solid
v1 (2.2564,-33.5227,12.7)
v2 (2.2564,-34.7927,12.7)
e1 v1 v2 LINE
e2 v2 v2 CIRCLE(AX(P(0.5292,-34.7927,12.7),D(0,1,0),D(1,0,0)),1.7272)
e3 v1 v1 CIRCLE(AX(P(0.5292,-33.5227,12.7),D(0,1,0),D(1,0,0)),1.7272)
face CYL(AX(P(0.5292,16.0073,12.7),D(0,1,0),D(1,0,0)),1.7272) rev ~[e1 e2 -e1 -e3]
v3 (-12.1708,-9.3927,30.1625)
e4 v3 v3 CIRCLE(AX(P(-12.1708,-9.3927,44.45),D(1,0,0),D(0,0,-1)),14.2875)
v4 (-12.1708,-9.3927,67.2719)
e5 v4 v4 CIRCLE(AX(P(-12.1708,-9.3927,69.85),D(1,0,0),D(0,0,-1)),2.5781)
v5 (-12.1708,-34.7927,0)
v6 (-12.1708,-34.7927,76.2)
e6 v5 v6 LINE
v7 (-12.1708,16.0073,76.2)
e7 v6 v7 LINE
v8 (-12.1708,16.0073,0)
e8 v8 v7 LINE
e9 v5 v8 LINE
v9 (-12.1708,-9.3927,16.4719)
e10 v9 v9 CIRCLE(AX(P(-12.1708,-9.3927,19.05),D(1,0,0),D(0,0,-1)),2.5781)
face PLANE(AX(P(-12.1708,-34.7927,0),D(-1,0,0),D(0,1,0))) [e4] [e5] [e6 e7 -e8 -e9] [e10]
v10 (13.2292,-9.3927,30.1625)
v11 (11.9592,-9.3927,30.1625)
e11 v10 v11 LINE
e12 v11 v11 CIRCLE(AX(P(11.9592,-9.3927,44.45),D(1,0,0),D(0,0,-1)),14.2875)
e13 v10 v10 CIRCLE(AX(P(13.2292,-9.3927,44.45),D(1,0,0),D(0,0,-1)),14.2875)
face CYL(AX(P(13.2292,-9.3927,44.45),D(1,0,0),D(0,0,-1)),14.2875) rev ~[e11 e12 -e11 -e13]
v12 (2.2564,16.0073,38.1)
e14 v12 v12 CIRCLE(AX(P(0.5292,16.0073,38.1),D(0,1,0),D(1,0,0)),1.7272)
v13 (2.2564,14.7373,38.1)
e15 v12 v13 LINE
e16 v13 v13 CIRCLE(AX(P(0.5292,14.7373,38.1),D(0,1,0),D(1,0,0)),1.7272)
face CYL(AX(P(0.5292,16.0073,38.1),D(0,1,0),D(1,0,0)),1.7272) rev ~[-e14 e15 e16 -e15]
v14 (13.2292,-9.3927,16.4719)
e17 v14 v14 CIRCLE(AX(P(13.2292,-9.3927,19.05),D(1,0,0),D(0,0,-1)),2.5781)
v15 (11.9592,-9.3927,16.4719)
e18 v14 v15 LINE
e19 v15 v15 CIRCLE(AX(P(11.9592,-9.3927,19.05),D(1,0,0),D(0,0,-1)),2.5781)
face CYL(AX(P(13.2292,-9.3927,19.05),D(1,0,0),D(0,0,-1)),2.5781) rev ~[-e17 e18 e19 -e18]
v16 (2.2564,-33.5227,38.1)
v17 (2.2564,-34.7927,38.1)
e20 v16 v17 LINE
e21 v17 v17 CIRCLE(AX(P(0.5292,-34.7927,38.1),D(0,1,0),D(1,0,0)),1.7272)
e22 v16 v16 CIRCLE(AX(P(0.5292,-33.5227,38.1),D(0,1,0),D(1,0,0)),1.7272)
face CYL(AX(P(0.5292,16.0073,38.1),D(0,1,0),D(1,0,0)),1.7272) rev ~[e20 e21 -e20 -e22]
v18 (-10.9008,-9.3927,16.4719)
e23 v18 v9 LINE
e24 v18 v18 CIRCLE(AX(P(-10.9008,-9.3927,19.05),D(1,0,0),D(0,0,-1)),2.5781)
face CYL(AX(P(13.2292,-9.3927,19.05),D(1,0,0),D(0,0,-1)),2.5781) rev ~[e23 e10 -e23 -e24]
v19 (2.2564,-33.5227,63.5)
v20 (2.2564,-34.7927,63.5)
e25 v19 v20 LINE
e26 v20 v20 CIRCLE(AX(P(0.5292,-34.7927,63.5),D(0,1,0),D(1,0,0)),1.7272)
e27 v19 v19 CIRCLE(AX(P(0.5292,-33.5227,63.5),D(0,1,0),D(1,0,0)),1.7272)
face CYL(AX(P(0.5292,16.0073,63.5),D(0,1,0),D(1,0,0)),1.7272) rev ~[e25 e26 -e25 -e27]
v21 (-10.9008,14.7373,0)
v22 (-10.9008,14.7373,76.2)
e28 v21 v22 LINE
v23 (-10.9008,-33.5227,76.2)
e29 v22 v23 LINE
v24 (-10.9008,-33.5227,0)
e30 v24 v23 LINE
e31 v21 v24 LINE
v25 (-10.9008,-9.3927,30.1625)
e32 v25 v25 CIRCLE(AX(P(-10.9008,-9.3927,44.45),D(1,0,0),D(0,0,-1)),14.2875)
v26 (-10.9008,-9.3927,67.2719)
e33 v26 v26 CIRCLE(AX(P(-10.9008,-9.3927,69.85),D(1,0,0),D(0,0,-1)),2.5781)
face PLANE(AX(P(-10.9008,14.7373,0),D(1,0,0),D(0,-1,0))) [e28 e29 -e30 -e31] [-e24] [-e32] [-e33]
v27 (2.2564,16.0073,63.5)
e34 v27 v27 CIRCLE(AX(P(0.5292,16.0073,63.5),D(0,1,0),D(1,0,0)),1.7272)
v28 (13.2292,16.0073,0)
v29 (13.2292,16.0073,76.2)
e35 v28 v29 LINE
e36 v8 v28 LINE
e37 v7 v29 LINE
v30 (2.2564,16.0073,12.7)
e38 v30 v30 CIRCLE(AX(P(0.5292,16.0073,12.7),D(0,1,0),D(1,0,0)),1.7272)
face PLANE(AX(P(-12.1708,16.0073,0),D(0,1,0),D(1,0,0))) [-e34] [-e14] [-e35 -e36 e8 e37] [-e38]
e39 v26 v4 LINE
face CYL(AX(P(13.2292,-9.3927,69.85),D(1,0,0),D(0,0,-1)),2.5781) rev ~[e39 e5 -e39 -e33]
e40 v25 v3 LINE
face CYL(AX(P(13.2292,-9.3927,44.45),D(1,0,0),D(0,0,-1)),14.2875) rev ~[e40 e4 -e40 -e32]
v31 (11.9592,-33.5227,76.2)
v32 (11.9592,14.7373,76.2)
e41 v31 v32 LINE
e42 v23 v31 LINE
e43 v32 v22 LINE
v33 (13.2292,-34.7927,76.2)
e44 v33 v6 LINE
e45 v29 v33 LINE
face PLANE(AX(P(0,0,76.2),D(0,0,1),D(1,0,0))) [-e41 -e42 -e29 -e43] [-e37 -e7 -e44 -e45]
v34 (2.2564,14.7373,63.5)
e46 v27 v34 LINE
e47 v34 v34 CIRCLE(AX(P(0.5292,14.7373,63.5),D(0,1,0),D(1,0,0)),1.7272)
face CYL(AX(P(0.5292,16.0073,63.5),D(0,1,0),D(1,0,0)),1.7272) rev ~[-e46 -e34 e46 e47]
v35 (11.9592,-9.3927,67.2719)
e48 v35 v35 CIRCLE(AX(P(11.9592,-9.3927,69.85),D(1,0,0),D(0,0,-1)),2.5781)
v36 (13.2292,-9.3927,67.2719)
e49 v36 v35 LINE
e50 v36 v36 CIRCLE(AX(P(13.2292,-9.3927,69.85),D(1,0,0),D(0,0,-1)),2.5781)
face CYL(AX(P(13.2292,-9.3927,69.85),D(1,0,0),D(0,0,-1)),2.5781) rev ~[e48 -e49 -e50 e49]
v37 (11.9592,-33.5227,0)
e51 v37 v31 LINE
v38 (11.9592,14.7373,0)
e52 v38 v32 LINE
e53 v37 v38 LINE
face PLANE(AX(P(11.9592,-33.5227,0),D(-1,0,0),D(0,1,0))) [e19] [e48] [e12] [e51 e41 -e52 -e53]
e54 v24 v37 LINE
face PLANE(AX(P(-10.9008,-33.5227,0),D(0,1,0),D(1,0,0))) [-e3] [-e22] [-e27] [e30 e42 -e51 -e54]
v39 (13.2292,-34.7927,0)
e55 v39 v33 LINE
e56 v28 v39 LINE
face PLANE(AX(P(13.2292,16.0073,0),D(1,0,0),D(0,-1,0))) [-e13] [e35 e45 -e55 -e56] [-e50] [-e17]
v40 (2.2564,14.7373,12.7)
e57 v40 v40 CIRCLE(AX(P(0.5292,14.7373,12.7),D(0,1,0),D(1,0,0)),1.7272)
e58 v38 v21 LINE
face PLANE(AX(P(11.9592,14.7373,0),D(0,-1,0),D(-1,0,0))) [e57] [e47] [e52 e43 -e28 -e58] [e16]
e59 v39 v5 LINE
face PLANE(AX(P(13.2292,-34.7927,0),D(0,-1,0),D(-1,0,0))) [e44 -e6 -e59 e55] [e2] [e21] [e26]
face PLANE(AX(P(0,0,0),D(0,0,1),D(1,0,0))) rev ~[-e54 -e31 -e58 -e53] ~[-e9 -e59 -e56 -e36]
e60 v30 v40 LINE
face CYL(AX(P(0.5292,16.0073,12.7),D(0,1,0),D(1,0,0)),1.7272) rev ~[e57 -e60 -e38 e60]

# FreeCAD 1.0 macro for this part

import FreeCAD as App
import Part
import Sketcher

V = App.Vector
Q = App.Units.Quantity


def add_polygon(sketch, points):
    """Adds a closed chain of lines whose ends are joined by coincident constraints."""
    first, n = sketch.GeometryCount, len(points)
    for a, b in zip(points, points[1:] + points[:1]):
        sketch.addGeometry(Part.LineSegment(App.Vector(*a, 0), App.Vector(*b, 0)), False)
    for i in range(n):
        sketch.addConstraint(Sketcher.Constraint("Coincident", first + i, 2, first + (i + 1) % n, 1))

doc = App.newDocument("Part")
body = doc.addObject("PartDesign::Body", "Body")

sketch1 = body.newObject("Sketcher::SketchObject", "Sketch")
sketch1.AttachmentSupport = (doc.getObject("XY_Plane"), [""])
sketch1.MapMode = "FlatFace"
add_polygon(sketch1, [(13.2292, 16.0073), (-12.1708, 16.0073), (-12.1708, -34.7927), (13.2292, -34.7927)])
add_polygon(sketch1, [(-10.9008, 14.7373), (11.9592, 14.7373), (11.9592, -33.5227), (-10.9008, -33.5227)])
sketch1.addConstraint([
    Sketcher.Constraint("Horizontal", 0),
    Sketcher.Constraint("Vertical", 1),
    Sketcher.Constraint("Horizontal", 2),
    Sketcher.Constraint("Vertical", 3),
    Sketcher.Constraint("Horizontal", 4),
    Sketcher.Constraint("Vertical", 5),
    Sketcher.Constraint("Horizontal", 6),
    Sketcher.Constraint("Vertical", 7),
    Sketcher.Constraint("DistanceX", 0, 2, 0, 1, Q("1 in")),
    Sketcher.Constraint("DistanceY", 1, 2, 1, 1, Q("2 in")),
    Sketcher.Constraint("DistanceX", 4, 2, 3, 2, Q("0.05 in")),
    Sketcher.Constraint("DistanceY", 4, 2, 3, 2, Q("0.05 in")),
    Sketcher.Constraint("DistanceY", 2, 2, 5, 2, Q("0.05 in")),
    Sketcher.Constraint("DistanceX", 1, 2, 6, 2, Q("0.05 in")),
    Sketcher.Constraint("DistanceY", -1, 1, 0, 2, Q("0.6302 in")),
    Sketcher.Constraint("DistanceX", 0, 2, -1, 1, 12.1708),
])
pad1 = body.newObject("PartDesign::Pad", "Pad")
pad1.Profile = sketch1
pad1.Length = Q("3 in")

sketch2 = body.newObject("Sketcher::SketchObject", "Sketch001")
sketch2.AttachmentSupport = (doc.getObject("XZ_Plane"), [""])
sketch2.MapMode = "FlatFace"
sketch2.AttachmentOffset = App.Placement(V(0, 0, -0.6302087 * 25.4), App.Rotation())
sketch2.addGeometry(Part.Circle(V(0.5292, 12.7, 0), V(0, 0, 1), 1.7272), False)
sketch2.addConstraint([
    Sketcher.Constraint("Diameter", 0, Q("0.136 in")),
    Sketcher.Constraint("DistanceY", -1, 1, 0, 3, Q("0.5 in")),
    Sketcher.Constraint("DistanceX", -1, 1, 0, 3, 0.5292),
])
pocket1 = body.newObject("PartDesign::Pocket", "Pocket")
pocket1.Profile = sketch2
pocket1.Type = "ThroughAll"
pocket1.Reversed = True
doc.recompute()

linearpattern = body.newObject("PartDesign::LinearPattern", "LinearPattern")
linearpattern.Originals = [pocket1]
linearpattern.Direction = (doc.getObject("Z_Axis"), [""])
linearpattern.Mode = "offset"
linearpattern.Offset = Q("1 in")
linearpattern.Occurrences = 8
body.Tip = linearpattern

sketch3 = body.newObject("Sketcher::SketchObject", "Sketch002")
sketch3.AttachmentSupport = (doc.getObject("YZ_Plane"), [""])
sketch3.MapMode = "FlatFace"
sketch3.AttachmentOffset = App.Placement(V(0, 0, 13.2292), App.Rotation())
sketch3.addGeometry(Part.Circle(V(-9.3927, 44.45, 0), V(0, 0, 1), 14.2875), False)
sketch3.addConstraint([
    Sketcher.Constraint("Diameter", 0, Q("1.125 in")),
    Sketcher.Constraint("DistanceY", -1, 1, 0, 3, Q("1.75 in")),
    Sketcher.Constraint("DistanceX", 0, 3, -1, 1, Q("0.3698 in")),
])
pocket2 = body.newObject("PartDesign::Pocket", "Pocket001")
pocket2.Profile = sketch3
pocket2.Type = "ThroughAll"

sketch4 = body.newObject("Sketcher::SketchObject", "Sketch003")
sketch4.AttachmentSupport = (doc.getObject("YZ_Plane"), [""])
sketch4.MapMode = "FlatFace"
sketch4.AttachmentOffset = App.Placement(V(0, 0, 13.2292), App.Rotation())
sketch4.addGeometry([
    Part.Circle(V(-9.3927, 69.85, 0), V(0, 0, 1), 2.5781),
    Part.Circle(V(-9.3927, 19.05, 0), V(0, 0, 1), 2.5781),
], False)
sketch4.addConstraint([
    Sketcher.Constraint("Equal", 0, 1),
    Sketcher.Constraint("Vertical", 0, 3, 1, 3),
    Sketcher.Constraint("Diameter", 0, Q("0.203 in")),
    Sketcher.Constraint("DistanceY", 1, 3, 0, 3, Q("2 in")),
    Sketcher.Constraint("DistanceY", -1, 1, 0, 3, Q("2.75 in")),
    Sketcher.Constraint("DistanceX", 0, 3, -1, 1, Q("0.3698 in")),
])
pocket3 = body.newObject("PartDesign::Pocket", "Pocket002")
pocket3.Profile = sketch4
pocket3.Type = "ThroughAll"

doc.recompute()
